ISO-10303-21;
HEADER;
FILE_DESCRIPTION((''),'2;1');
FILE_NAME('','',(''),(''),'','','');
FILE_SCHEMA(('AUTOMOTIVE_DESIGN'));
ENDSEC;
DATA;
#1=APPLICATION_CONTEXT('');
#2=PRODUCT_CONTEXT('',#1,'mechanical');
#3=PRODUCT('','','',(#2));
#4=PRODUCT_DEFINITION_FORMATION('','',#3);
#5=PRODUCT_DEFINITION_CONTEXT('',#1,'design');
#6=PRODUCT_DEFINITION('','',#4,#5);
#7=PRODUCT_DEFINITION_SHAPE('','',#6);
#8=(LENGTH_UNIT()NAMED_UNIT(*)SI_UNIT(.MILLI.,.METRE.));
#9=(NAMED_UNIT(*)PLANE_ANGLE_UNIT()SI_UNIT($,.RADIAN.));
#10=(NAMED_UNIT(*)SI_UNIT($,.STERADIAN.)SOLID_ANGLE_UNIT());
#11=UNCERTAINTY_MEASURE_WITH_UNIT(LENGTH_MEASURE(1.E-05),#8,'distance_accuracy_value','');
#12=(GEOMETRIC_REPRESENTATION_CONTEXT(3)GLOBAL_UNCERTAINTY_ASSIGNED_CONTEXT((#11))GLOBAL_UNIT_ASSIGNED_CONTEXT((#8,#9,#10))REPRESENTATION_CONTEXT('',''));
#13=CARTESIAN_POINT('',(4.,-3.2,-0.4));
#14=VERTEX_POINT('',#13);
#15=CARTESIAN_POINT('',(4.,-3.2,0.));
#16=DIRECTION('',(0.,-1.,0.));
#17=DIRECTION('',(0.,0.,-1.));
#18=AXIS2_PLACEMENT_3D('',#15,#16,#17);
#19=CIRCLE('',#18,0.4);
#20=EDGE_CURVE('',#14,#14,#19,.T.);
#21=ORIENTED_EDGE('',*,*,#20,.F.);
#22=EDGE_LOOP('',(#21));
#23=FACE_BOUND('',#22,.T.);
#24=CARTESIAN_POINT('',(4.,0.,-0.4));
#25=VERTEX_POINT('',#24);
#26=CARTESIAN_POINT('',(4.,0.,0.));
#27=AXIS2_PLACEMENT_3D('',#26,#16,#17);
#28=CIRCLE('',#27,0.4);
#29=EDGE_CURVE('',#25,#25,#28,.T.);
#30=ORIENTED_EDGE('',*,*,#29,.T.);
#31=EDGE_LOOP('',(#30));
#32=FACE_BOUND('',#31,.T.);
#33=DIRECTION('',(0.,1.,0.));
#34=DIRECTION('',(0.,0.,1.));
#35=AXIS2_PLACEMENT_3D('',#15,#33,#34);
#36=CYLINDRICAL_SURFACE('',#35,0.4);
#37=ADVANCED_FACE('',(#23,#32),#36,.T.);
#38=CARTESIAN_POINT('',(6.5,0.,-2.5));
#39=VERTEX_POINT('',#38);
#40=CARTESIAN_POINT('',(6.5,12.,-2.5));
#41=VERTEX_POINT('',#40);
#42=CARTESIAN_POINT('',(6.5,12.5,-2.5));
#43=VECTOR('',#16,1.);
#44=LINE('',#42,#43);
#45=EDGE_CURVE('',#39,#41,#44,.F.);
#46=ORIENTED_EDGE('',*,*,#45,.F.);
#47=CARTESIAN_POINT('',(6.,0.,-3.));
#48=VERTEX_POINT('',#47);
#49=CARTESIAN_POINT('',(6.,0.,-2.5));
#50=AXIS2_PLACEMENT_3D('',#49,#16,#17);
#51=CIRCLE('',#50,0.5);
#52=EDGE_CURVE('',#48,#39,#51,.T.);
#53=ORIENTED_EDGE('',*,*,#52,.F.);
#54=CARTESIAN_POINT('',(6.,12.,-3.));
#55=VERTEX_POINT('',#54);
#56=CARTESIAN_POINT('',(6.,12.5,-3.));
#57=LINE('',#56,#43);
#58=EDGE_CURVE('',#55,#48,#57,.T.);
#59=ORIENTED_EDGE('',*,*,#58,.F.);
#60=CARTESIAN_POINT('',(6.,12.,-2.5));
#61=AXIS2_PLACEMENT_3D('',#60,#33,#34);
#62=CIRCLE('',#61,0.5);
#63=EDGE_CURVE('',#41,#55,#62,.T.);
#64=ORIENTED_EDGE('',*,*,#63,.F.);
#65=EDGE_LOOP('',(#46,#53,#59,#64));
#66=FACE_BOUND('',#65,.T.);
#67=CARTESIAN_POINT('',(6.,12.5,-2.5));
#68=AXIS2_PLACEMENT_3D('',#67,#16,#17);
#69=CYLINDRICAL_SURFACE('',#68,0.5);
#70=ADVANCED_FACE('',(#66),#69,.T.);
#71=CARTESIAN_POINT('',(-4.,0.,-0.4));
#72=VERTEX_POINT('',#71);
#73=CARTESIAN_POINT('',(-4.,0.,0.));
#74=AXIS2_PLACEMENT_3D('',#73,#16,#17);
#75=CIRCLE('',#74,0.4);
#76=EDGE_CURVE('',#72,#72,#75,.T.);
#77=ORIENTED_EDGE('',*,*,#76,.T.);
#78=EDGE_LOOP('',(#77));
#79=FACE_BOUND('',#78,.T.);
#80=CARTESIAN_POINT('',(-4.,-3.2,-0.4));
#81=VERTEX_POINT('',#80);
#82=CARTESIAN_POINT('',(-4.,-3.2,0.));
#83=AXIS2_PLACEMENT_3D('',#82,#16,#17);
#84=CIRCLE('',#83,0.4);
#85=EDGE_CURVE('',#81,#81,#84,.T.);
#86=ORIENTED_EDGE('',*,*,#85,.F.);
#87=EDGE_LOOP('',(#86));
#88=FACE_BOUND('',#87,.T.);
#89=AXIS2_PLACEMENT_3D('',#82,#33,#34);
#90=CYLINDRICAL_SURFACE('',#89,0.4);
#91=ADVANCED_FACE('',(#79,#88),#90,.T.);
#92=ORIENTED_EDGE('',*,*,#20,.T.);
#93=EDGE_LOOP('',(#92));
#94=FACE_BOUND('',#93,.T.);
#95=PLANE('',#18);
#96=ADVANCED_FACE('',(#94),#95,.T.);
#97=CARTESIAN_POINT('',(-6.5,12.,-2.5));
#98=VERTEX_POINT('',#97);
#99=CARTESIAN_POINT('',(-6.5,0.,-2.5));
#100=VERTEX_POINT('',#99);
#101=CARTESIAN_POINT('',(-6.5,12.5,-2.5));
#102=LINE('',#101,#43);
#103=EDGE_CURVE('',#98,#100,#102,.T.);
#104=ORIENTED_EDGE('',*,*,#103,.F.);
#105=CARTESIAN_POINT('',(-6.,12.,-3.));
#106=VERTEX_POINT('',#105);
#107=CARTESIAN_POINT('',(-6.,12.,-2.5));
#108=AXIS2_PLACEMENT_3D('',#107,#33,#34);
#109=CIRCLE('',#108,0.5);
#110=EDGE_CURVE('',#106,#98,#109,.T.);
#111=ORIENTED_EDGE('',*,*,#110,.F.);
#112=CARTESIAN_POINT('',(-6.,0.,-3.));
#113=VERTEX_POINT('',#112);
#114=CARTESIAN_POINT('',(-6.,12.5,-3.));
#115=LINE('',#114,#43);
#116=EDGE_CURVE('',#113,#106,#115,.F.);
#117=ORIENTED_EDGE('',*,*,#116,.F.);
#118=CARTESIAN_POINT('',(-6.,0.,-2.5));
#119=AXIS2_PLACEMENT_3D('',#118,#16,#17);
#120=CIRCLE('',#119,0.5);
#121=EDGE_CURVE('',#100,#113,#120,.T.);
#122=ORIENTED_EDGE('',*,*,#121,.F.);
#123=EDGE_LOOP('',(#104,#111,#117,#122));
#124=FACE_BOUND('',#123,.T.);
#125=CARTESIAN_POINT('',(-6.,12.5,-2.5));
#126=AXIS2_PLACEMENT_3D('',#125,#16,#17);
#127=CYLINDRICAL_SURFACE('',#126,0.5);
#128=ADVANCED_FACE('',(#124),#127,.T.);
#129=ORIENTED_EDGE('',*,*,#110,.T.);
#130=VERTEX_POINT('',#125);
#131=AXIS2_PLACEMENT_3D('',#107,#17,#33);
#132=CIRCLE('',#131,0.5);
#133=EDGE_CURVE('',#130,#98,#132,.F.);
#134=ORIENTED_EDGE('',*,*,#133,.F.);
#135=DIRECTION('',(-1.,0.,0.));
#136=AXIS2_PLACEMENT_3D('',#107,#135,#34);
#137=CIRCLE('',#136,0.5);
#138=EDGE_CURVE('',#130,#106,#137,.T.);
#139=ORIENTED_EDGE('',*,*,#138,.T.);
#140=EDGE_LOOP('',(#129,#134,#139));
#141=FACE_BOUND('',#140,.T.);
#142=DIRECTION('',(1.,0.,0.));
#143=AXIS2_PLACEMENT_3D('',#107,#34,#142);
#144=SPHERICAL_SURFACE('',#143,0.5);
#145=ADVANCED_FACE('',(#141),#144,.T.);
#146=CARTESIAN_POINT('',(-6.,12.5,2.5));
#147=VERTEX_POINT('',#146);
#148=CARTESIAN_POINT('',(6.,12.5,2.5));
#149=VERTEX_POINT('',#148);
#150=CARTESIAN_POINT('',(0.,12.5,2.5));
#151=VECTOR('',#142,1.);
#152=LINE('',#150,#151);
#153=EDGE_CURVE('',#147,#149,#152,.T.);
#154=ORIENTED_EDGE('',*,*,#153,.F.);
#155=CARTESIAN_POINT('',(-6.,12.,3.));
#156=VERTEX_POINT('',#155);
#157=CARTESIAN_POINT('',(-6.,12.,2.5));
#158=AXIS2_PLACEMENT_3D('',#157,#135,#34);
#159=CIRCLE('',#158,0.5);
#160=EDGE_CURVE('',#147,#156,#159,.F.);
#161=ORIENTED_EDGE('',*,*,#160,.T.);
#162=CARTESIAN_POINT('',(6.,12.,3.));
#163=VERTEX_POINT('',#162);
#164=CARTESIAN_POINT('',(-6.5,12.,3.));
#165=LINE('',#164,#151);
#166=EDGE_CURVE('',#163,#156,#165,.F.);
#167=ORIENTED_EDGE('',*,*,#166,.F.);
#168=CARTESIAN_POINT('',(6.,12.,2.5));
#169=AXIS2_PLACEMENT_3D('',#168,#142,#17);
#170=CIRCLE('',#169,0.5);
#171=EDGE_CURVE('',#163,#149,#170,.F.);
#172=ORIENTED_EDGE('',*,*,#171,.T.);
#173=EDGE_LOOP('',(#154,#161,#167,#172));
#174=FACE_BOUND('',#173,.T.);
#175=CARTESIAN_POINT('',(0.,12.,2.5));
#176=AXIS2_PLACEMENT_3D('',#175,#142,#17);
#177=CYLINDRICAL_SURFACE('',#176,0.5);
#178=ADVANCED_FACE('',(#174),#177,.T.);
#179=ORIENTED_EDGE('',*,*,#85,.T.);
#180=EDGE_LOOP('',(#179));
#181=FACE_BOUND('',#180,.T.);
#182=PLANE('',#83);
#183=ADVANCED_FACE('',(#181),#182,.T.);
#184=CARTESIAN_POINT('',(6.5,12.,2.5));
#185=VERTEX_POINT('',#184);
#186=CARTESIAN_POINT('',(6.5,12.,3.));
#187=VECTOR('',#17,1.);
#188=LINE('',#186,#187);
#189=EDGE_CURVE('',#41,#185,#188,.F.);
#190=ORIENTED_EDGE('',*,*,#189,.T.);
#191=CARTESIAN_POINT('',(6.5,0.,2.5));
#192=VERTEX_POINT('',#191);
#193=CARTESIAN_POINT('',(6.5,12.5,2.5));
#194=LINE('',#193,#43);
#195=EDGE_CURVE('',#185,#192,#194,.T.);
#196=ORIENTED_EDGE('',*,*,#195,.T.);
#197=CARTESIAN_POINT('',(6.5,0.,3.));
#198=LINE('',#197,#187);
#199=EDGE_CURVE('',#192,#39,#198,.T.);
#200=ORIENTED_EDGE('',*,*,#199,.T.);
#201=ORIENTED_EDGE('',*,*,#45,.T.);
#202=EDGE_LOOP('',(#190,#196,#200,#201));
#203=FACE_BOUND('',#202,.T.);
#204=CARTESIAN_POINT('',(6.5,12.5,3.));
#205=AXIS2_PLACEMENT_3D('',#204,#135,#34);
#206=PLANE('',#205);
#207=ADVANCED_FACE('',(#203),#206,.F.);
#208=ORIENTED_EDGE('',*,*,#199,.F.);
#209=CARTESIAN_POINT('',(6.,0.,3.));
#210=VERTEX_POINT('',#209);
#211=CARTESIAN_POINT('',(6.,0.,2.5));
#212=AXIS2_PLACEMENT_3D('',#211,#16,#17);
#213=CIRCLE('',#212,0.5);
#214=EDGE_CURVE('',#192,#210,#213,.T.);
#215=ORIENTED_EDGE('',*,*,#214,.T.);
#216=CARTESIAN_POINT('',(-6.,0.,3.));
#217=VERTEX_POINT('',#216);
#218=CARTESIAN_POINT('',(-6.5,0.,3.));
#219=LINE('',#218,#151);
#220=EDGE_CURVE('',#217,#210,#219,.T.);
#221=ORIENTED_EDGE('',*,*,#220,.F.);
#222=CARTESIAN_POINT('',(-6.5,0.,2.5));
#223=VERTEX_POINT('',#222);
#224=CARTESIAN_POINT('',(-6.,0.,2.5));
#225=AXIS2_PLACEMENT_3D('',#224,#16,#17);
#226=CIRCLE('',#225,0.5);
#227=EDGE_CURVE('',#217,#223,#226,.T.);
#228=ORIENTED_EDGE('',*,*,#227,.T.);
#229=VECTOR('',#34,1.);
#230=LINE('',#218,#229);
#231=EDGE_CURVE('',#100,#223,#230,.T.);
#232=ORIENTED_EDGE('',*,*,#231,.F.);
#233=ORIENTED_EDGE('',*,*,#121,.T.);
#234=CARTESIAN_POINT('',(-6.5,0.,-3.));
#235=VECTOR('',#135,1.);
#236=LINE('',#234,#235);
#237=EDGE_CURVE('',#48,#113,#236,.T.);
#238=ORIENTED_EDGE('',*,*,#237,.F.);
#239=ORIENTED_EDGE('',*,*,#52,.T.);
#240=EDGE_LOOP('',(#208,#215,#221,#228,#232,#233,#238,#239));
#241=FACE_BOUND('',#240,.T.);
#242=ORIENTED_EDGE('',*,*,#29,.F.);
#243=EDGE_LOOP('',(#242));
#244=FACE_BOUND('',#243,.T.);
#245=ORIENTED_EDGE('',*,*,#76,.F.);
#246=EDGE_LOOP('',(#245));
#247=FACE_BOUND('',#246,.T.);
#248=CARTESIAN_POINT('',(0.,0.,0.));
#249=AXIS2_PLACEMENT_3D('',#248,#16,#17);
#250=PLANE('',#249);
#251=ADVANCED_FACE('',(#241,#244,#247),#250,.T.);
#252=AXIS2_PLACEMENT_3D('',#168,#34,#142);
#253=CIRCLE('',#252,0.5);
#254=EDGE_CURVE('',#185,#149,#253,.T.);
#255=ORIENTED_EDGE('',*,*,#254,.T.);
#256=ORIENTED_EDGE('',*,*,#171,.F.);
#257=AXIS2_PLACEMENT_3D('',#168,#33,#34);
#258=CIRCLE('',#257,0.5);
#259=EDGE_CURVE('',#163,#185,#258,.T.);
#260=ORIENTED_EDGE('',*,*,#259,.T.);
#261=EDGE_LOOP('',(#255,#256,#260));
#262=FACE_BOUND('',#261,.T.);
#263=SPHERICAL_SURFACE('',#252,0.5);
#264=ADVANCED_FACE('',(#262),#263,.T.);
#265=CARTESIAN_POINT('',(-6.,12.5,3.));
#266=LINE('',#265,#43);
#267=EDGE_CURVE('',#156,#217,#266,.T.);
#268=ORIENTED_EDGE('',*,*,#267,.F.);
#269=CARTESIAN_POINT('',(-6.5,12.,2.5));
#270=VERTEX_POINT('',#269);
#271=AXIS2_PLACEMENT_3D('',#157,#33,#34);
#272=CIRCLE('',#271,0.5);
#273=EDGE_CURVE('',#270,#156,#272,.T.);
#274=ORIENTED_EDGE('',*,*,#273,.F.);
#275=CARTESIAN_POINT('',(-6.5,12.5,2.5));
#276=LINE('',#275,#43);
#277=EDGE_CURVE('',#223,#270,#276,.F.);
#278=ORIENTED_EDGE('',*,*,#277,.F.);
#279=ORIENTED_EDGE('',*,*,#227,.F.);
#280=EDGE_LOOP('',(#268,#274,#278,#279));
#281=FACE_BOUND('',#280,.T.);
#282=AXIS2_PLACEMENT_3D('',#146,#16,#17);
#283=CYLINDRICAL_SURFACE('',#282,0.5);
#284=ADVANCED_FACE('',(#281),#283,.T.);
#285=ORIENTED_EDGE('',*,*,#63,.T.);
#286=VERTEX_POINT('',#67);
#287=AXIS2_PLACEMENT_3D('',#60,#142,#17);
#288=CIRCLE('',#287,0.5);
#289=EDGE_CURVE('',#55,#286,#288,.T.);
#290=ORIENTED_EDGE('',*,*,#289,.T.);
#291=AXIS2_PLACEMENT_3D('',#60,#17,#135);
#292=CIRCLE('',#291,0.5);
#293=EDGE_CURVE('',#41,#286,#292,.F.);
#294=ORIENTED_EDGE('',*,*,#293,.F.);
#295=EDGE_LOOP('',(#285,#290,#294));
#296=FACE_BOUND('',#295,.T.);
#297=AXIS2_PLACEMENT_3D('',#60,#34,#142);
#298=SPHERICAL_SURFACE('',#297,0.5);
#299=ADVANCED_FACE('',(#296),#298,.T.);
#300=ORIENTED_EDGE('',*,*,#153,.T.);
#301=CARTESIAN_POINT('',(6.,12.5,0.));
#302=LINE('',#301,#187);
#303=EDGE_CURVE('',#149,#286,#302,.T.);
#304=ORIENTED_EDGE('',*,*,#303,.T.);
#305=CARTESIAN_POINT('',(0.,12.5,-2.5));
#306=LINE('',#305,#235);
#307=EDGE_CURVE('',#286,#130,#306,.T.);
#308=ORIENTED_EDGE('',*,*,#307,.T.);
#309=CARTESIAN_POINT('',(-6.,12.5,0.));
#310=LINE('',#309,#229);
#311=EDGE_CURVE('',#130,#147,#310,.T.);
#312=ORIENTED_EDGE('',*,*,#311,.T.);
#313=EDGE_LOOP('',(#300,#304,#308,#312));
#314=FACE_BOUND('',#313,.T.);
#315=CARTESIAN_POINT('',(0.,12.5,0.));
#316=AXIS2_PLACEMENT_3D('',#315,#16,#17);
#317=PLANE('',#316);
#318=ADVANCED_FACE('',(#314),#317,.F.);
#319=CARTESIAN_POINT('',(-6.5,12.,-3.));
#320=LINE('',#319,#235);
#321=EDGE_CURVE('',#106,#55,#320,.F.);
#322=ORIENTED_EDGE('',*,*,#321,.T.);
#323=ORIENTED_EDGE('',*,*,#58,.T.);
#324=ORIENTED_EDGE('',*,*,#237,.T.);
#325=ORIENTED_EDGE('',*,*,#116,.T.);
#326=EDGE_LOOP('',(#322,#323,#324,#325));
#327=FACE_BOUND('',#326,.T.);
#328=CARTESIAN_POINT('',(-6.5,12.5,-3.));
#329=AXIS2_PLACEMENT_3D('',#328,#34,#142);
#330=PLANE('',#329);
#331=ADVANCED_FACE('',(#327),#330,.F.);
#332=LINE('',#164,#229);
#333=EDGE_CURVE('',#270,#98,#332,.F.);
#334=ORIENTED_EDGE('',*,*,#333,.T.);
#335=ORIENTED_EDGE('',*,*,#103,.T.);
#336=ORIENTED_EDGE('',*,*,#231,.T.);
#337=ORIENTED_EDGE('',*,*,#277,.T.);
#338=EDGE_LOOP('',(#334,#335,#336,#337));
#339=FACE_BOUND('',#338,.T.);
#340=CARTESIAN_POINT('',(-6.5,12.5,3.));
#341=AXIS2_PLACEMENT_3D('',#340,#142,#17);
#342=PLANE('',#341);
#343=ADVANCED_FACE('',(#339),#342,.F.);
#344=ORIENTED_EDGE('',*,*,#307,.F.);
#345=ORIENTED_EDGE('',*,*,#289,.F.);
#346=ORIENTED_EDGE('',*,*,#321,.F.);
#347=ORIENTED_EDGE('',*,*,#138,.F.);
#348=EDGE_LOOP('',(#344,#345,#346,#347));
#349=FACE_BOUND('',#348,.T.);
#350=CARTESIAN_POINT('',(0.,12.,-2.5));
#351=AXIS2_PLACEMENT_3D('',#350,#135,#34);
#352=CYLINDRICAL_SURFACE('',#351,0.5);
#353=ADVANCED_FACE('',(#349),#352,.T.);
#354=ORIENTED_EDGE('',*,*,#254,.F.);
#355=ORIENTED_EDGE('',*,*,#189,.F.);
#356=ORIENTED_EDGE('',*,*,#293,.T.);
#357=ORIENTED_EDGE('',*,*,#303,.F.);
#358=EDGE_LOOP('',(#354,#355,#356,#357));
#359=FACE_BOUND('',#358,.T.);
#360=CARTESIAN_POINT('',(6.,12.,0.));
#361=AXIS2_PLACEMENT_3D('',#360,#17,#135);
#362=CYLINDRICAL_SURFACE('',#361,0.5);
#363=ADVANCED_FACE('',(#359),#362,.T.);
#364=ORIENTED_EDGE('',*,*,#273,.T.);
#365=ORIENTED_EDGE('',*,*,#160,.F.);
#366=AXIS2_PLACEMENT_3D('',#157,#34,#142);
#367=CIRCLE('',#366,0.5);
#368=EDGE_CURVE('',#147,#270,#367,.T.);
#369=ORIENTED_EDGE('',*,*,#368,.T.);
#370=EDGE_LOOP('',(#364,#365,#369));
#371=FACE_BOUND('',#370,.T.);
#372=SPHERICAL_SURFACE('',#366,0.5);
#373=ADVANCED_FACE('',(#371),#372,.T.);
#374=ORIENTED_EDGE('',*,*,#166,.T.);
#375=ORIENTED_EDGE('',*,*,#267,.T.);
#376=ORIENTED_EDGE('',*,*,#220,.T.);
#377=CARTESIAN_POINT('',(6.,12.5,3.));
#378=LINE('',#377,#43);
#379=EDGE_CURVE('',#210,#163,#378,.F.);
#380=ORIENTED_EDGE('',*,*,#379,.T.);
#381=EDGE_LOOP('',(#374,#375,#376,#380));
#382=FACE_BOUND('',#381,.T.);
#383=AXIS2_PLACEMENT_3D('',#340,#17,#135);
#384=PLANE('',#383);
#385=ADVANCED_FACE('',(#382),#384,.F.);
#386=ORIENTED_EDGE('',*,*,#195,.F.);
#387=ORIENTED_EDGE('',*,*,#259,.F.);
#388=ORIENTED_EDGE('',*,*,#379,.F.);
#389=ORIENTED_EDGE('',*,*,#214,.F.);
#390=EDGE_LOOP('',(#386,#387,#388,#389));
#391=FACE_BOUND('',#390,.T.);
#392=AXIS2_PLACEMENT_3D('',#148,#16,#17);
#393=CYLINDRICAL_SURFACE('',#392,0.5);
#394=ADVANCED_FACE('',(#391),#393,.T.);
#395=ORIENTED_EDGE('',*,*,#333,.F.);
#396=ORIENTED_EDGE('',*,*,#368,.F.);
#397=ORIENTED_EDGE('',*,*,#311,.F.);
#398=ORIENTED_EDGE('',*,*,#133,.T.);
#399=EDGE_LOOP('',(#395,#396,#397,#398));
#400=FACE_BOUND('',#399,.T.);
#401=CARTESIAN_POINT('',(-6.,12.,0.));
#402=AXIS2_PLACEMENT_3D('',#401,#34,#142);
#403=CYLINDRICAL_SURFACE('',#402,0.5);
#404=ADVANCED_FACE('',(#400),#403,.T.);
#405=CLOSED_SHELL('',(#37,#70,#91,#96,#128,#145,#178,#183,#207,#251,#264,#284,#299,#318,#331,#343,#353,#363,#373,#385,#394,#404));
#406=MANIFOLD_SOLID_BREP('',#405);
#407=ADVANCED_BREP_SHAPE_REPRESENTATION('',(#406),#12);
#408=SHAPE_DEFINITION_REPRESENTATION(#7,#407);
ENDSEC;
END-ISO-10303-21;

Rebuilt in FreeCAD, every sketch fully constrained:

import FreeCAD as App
import Part
import Sketcher
from FreeCAD import Vector
Q = App.Units.Quantity


def edges_at(feature, points):
    """Names of the edges that pass closest to the given points."""
    edges = feature.Shape.Edges
    near = lambda p: min(range(len(edges)), key=lambda i: edges[i].distToShape(Part.Vertex(*p))[0])
    return sorted({f"Edge{near(p) + 1}" for p in points})

doc = App.newDocument("Part")
body = doc.addObject("PartDesign::Body", "Body")

sketch1 = body.newObject("Sketcher::SketchObject", "Sketch")
sketch1.AttachmentSupport = (doc.getObject("XZ_Plane"), [""])
sketch1.MapMode = "FlatFace"
sketch1.addGeometry(Part.LineSegment(Vector(-6, -3, 0), Vector(-6, 3, 0)), False)
sketch1.addGeometry(Part.LineSegment(Vector(-6, 3, 0), Vector(6, 3, 0)), False)
sketch1.addGeometry(Part.LineSegment(Vector(6, 3, 0), Vector(6, -3, 0)), False)
sketch1.addGeometry(Part.LineSegment(Vector(6, -3, 0), Vector(-6, -3, 0)), False)
sketch1.addConstraint(Sketcher.Constraint("Coincident", 0, 2, 1, 1))
sketch1.addConstraint(Sketcher.Constraint("Coincident", 1, 2, 2, 1))
sketch1.addConstraint(Sketcher.Constraint("Coincident", 2, 2, 3, 1))
sketch1.addConstraint(Sketcher.Constraint("Coincident", 3, 2, 0, 1))
sketch1.addConstraint(Sketcher.Constraint("Vertical", 0))
sketch1.addConstraint(Sketcher.Constraint("Horizontal", 1))
sketch1.addConstraint(Sketcher.Constraint("Vertical", 2))
sketch1.addConstraint(Sketcher.Constraint("Horizontal", 3))
sketch1.addConstraint(Sketcher.Constraint("Symmetric", 0, 2, 2, 2, -1, 1))
sketch1.addConstraint(Sketcher.Constraint("DistanceX", 1, 1, 1, 2, Q("13 mm")))
sketch1.addConstraint(Sketcher.Constraint("DistanceY", 0, 1, 0, 2, Q("6 mm")))
pad1 = body.newObject("PartDesign::Pad", "Pad")
pad1.Profile = sketch1
pad1.Length = 12.5
pad1.Reversed = True

sketch2 = body.newObject("Sketcher::SketchObject", "Sketch001")
sketch2.AttachmentSupport = (doc.getObject("XZ_Plane"), [""])
sketch2.MapMode = "FlatFace"
sketch2.addGeometry(Part.Circle(Vector(-4, 0, 0), Vector(0, 0, 1), 0.4), False)
sketch2.addGeometry(Part.Circle(Vector(4, 0, 0), Vector(0, 0, 1), 0.4), False)
sketch2.addConstraint(Sketcher.Constraint("Equal", 0, 1))
sketch2.addConstraint(Sketcher.Constraint("Symmetric", 0, 3, 1, 3, -1, 1))
sketch2.addConstraint(Sketcher.Constraint("PointOnObject", 0, 3, -1))
sketch2.addConstraint(Sketcher.Constraint("Diameter", 0, Q("0.8 mm")))
sketch2.addConstraint(Sketcher.Constraint("DistanceX", 0, 3, -1, 1, Q("4 mm")))
pad2 = body.newObject("PartDesign::Pad", "Pad001")
pad2.Profile = sketch2
pad2.Length = 3.2
doc.recompute()

fillet = body.newObject("PartDesign::Fillet", "Fillet")
fillet.Base = (pad2, edges_at(pad2, [
    (-6.5, 12.5, 0),
    (0, 12.5, 3),
    (6.5, 12.5, 0),
    (6.5, 6.25, 3),
    (-6.5, 6.25, 3),
    (-6.5, 6.25, -3),
    (6.5, 6.25, -3),
    (0, 12.5, -3),
]))
fillet.Radius = 0.5

doc.recompute()
